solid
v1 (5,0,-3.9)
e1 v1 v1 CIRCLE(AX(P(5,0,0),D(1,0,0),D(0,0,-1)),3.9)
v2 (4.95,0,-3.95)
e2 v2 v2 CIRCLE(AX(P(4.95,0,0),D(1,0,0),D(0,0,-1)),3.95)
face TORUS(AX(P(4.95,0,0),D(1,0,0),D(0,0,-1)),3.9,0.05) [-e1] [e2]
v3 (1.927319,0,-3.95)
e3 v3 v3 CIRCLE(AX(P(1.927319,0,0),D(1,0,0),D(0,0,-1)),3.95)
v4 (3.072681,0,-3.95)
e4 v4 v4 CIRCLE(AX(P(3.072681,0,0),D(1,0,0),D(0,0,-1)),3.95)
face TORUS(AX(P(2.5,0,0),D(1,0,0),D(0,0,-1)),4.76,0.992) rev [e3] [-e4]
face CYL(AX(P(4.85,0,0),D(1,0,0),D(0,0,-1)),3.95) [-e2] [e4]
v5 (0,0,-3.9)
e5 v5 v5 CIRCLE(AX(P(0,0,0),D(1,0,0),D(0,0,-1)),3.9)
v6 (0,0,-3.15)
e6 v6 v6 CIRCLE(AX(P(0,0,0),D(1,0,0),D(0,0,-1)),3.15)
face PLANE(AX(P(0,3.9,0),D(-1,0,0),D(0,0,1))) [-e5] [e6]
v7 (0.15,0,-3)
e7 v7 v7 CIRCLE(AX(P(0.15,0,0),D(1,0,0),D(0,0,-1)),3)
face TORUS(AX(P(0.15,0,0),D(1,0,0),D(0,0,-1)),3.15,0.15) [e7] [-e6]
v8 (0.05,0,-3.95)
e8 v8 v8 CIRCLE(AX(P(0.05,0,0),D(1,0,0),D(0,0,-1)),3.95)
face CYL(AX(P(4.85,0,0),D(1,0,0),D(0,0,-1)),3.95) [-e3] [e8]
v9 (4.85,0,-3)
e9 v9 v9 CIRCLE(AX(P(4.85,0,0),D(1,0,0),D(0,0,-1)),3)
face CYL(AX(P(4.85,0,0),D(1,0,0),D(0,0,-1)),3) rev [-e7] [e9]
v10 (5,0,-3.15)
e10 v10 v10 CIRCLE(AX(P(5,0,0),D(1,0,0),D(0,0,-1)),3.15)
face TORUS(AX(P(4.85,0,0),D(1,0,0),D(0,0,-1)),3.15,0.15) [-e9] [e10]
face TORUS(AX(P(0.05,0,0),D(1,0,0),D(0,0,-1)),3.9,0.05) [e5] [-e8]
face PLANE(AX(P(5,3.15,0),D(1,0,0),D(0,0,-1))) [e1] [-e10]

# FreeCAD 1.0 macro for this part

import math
import FreeCAD as App
import Part
import Sketcher

V = App.Vector
Q = App.Units.Quantity

doc = App.newDocument("Part")
body = doc.addObject("PartDesign::Body", "Body")

# Sketch on XY plane
sketch1 = body.newObject("Sketcher::SketchObject", "Sketch")
sketch1.AttachmentSupport = (doc.getObject("XY_Plane"), [""])
sketch1.MapMode = "FlatFace"
sketch1.addGeometry(Part.LineSegment(V(0, 3.9, 0), V(0, 3.15, 0)), False)
sketch1.addGeometry(Part.ArcOfCircle(Part.Circle(V(0.15, 3.15, 0), V(0, 0, 1), 0.15), math.radians(-180), math.radians(-90)), False)
sketch1.addGeometry(Part.LineSegment(V(0.15, 3, 0), V(4.85, 3, 0)), False)
sketch1.addGeometry(Part.ArcOfCircle(Part.Circle(V(4.85, 3.15, 0), V(0, 0, 1), 0.15), math.radians(-90), math.radians(0)), False)
sketch1.addGeometry(Part.LineSegment(V(5, 3.15, 0), V(5, 3.9, 0)), False)
sketch1.addGeometry(Part.ArcOfCircle(Part.Circle(V(4.95, 3.9, 0), V(0, 0, 1), 0.05), math.radians(0), math.radians(90)), False)
sketch1.addGeometry(Part.LineSegment(V(4.95, 3.95, 0), V(3.07, 3.95, 0)), False)
sketch1.addGeometry(Part.ArcOfCircle(Part.Circle(V(2.5, 4.76, 0), V(0, 0, 1), 0.99), math.radians(-125), math.radians(-55)), False)
sketch1.addGeometry(Part.LineSegment(V(1.93, 3.95, 0), V(0.05, 3.95, 0)), False)
sketch1.addGeometry(Part.ArcOfCircle(Part.Circle(V(0.05, 3.9, 0), V(0, 0, 1), 0.05), math.radians(90), math.radians(180)), False)
sketch1.addConstraint(Sketcher.Constraint("Tangent", 0, 2, 1, 1))
sketch1.addConstraint(Sketcher.Constraint("Tangent", 1, 2, 2, 1))
sketch1.addConstraint(Sketcher.Constraint("Tangent", 2, 2, 3, 1))
sketch1.addConstraint(Sketcher.Constraint("Tangent", 3, 2, 4, 1))
sketch1.addConstraint(Sketcher.Constraint("Tangent", 4, 2, 5, 1))
sketch1.addConstraint(Sketcher.Constraint("Tangent", 5, 2, 6, 1))
sketch1.addConstraint(Sketcher.Constraint("Coincident", 6, 2, 7, 2))
sketch1.addConstraint(Sketcher.Constraint("Coincident", 7, 1, 8, 1))
sketch1.addConstraint(Sketcher.Constraint("Tangent", 8, 2, 9, 1))
sketch1.addConstraint(Sketcher.Constraint("Tangent", 9, 2, 0, 1))
sketch1.addConstraint(Sketcher.Constraint("Vertical", 0))
sketch1.addConstraint(Sketcher.Constraint("Horizontal", 2))
sketch1.addConstraint(Sketcher.Constraint("Vertical", 4))
sketch1.addConstraint(Sketcher.Constraint("Horizontal", 6))
sketch1.addConstraint(Sketcher.Constraint("Horizontal", 8))
sketch1.addConstraint(Sketcher.Constraint("Equal", 1, 3))
sketch1.addConstraint(Sketcher.Constraint("Equal", 5, 9))
sketch1.addConstraint(Sketcher.Constraint("PointOnObject", 0, 2, -2))
sketch1.addConstraint(Sketcher.Constraint("Horizontal", 5, 3, 9, 3))
sketch1.addConstraint(Sketcher.Constraint("Equal", 6, 8))
sketch1.addConstraint(Sketcher.Constraint("Radius", 1, Q("0.15 mm")))
sketch1.addConstraint(Sketcher.Constraint("Radius", 5, Q("0.05 mm")))
sketch1.addConstraint(Sketcher.Constraint("DistanceX", 2, 1, 2, 2, Q("4.7 mm")))
sketch1.addConstraint(Sketcher.Constraint("DistanceY", -1, 1, 1, 2, Q("3 mm")))
sketch1.addConstraint(Sketcher.Constraint("Radius", 7, Q("0.992 mm")))
sketch1.addConstraint(Sketcher.Constraint("DistanceY", 0, 2, 0, 1, Q("0.75 mm")))
sketch1.addConstraint(Sketcher.Constraint("DistanceY", -1, 1, 7, 3, Q("4.76 mm")))
revolution = body.newObject("PartDesign::Revolution", "Revolution")
revolution.Profile = sketch1
revolution.ReferenceAxis = (sketch1, ["H_Axis"])
revolution.Angle = 360

doc.recompute()
